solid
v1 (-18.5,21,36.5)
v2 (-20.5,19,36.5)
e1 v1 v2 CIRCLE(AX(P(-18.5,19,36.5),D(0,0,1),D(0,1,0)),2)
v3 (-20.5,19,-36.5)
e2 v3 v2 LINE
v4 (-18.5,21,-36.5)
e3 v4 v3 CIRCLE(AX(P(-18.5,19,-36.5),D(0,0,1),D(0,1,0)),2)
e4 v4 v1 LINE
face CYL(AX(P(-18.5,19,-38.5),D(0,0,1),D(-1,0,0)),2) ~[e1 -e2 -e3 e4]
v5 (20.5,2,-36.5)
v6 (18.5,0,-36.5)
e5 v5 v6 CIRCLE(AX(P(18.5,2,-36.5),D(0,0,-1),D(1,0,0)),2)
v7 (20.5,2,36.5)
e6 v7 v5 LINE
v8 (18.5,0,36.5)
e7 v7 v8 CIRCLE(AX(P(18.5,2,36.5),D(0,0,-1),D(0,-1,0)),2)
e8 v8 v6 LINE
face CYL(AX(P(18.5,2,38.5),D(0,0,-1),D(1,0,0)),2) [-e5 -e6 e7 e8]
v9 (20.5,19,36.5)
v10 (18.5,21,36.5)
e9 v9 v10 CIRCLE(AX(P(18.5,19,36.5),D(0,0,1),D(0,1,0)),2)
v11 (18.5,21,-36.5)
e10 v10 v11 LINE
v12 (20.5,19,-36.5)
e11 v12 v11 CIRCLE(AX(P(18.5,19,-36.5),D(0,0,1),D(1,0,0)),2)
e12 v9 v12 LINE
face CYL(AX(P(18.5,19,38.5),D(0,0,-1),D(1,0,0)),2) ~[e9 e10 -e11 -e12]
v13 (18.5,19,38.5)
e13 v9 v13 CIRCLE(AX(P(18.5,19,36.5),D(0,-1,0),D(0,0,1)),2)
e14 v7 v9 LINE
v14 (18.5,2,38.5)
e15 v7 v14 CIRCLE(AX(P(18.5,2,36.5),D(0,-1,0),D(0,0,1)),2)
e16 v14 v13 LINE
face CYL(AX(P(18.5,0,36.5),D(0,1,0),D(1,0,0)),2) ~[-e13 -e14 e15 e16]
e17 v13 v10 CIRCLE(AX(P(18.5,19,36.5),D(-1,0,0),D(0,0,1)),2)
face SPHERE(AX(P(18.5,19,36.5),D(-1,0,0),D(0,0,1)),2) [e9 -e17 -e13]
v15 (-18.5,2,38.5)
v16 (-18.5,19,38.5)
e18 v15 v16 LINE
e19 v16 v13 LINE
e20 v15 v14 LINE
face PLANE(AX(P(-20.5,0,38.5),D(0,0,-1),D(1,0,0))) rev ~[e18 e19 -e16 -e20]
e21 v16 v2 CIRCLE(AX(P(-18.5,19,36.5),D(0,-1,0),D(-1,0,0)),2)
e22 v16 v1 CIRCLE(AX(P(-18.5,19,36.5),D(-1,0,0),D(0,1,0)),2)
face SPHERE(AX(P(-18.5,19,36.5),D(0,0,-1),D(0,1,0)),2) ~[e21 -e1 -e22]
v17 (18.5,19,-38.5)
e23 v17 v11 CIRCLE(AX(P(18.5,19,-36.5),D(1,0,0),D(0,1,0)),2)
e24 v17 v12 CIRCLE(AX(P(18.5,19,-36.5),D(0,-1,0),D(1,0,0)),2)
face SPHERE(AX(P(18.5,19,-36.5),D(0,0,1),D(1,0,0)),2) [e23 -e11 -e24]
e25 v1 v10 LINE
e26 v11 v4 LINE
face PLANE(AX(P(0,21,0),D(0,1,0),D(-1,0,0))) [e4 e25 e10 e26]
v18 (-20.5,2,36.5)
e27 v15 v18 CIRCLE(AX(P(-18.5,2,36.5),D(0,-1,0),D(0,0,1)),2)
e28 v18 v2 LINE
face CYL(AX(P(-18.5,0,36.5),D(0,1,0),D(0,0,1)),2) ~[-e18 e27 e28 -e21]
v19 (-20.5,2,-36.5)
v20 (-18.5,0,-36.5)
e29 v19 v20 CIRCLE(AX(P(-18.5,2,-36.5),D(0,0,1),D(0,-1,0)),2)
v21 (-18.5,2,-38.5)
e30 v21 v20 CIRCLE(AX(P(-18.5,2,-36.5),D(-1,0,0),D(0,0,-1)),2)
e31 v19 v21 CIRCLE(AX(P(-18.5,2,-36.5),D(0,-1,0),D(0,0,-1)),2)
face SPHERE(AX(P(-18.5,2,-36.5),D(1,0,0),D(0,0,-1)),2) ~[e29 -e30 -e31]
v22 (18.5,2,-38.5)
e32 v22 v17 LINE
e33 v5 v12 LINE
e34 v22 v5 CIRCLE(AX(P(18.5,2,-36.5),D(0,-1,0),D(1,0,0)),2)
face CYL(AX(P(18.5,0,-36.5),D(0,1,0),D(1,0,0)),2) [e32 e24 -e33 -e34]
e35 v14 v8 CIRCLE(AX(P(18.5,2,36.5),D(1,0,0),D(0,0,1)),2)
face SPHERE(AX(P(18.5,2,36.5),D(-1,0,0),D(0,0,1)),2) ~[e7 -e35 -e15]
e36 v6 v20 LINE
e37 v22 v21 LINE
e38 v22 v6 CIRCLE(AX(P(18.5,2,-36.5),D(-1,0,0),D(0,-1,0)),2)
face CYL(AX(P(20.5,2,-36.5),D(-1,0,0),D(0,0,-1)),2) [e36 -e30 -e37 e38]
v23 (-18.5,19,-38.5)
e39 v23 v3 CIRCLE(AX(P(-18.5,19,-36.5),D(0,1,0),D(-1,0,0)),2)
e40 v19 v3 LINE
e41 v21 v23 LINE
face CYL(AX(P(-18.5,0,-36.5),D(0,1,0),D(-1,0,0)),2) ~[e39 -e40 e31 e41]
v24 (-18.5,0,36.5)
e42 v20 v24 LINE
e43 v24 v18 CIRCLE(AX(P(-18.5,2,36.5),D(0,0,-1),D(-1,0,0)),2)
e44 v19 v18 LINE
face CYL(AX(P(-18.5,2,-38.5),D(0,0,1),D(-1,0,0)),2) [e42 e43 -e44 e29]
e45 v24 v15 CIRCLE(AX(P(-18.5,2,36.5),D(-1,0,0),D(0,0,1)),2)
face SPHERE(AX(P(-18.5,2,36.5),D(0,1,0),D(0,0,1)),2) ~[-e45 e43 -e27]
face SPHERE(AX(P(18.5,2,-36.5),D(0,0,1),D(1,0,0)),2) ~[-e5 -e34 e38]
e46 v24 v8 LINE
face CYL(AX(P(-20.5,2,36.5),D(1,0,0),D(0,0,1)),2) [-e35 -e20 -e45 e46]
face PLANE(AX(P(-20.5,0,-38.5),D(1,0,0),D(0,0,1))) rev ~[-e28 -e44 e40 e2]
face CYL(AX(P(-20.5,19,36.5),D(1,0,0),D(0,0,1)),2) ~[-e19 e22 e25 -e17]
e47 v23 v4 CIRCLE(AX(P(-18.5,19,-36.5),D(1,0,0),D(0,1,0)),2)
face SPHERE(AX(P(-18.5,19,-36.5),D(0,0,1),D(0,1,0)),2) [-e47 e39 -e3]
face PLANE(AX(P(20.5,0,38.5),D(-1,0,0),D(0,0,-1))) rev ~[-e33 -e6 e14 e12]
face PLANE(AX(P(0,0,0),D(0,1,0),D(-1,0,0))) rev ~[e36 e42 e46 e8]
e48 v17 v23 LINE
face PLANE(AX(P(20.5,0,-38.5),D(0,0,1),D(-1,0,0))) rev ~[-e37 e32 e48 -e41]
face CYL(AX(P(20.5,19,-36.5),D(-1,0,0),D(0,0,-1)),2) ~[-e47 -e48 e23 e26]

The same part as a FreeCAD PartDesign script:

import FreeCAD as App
import Part
import Sketcher
from FreeCAD import Vector

doc = App.newDocument("Part")
body = doc.addObject("PartDesign::Body", "Body")

# Sketch on XZ plane
sketch1 = body.newObject("Sketcher::SketchObject", "Sketch")
sketch1.AttachmentSupport = (doc.getObject("XZ_Plane"), [""])
sketch1.MapMode = "FlatFace"
sketch1.addGeometry([
    Part.LineSegment(Vector(20.5, 38.5, 0), Vector(20.5, -38.5, 0)),
    Part.LineSegment(Vector(20.5, -38.5, 0), Vector(-20.5, -38.5, 0)),
    Part.LineSegment(Vector(-20.5, -38.5, 0), Vector(-20.5, 38.5, 0)),
    Part.LineSegment(Vector(-20.5, 38.5, 0), Vector(20.5, 38.5, 0)),
], False)
sketch1.addConstraint([
    Sketcher.Constraint("Coincident", 0, 2, 1, 1),
    Sketcher.Constraint("Coincident", 1, 2, 2, 1),
    Sketcher.Constraint("Coincident", 2, 2, 3, 1),
    Sketcher.Constraint("Coincident", 3, 2, 0, 1),
    Sketcher.Constraint("Vertical", 0),
    Sketcher.Constraint("Horizontal", 1),
    Sketcher.Constraint("Vertical", 2),
    Sketcher.Constraint("Horizontal", 3),
    Sketcher.Constraint("Symmetric", 0, 2, 2, 2, -1, 1),
    Sketcher.Constraint("DistanceX", 1, 2, 1, 1, 41.0),
    Sketcher.Constraint("DistanceY", 0, 2, 0, 1, 77.0),
])
pad1 = body.newObject("PartDesign::Pad", "Pad")
pad1.Profile = sketch1
pad1.Length = 21
pad1.Reversed = True
doc.recompute()

fillet = body.newObject("PartDesign::Fillet", "Fillet")
fillet.Base = (pad1, ["Edge1"])
fillet.UseAllEdges = True
fillet.Radius = 2

doc.recompute()
